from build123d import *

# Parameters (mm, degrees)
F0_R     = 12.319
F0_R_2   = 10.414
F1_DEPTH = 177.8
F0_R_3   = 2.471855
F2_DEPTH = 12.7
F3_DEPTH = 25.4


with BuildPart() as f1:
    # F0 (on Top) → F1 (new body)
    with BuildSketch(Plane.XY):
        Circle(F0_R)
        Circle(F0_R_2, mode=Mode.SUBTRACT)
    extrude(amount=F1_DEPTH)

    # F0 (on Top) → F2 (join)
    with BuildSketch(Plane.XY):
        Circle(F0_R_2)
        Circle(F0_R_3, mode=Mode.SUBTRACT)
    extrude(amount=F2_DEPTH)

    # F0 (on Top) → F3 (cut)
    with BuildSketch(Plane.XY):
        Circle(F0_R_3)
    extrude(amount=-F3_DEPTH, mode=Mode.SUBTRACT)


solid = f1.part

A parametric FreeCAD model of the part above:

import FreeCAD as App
import Part
import Sketcher
from FreeCAD import Vector
Q = App.Units.Quantity

doc = App.newDocument("Part")
body = doc.addObject("PartDesign::Body", "Body")

sketch1 = body.newObject("Sketcher::SketchObject", "Sketch")
sketch1.AttachmentSupport = (doc.getObject("XY_Plane"), [""])
sketch1.MapMode = "FlatFace"
sketch1.addGeometry([
    Part.Circle(Vector(0, 0, 0), Vector(0, 0, 1), 12),
    Part.Circle(Vector(0, 0, 0), Vector(0, 0, 1), 10),
], False)
sketch1.addConstraint([
    Sketcher.Constraint("Coincident", 0, 3, -1, 1),
    Sketcher.Constraint("Coincident", 1, 3, -1, 1),
    Sketcher.Constraint("Diameter", 0, Q("0.97 in")),
    Sketcher.Constraint("Diameter", 1, Q("0.82 in")),
])
pad1 = body.newObject("PartDesign::Pad", "Pad")
pad1.Profile = sketch1
pad1.Length = Q("7 in")

sketch2 = body.newObject("Sketcher::SketchObject", "Sketch001")
sketch2.AttachmentSupport = (doc.getObject("XY_Plane"), [""])
sketch2.MapMode = "FlatFace"
sketch2.addGeometry([
    Part.Circle(Vector(0, 0, 0), Vector(0, 0, 1), 10.4),
    Part.Circle(Vector(0, 0, 0), Vector(0, 0, 1), 2.5),
], False)
sketch2.addConstraint([
    Sketcher.Constraint("Coincident", 0, 3, -1, 1),
    Sketcher.Constraint("Coincident", 1, 3, -1, 1),
    Sketcher.Constraint("Diameter", 0, Q("0.82 in")),
    Sketcher.Constraint("Diameter", 1, Q("4.94371 mm")),
])
pad2 = body.newObject("PartDesign::Pad", "Pad001")
pad2.Profile = sketch2
pad2.Length = Q("0.5 in")

sketch3 = body.newObject("Sketcher::SketchObject", "Sketch002")
sketch3.AttachmentSupport = (doc.getObject("XY_Plane"), [""])
sketch3.MapMode = "FlatFace"
sketch3.addGeometry(Part.Circle(Vector(0, 0, 0), Vector(0, 0, 1), 2.5), False)
sketch3.addConstraint([
    Sketcher.Constraint("Coincident", 0, 3, -1, 1),
    Sketcher.Constraint("Diameter", 0, Q("4.94371 mm")),
])
pocket1 = body.newObject("PartDesign::Pocket", "Pocket")
pocket1.Profile = sketch3
pocket1.Length = Q("1 in")

doc.recompute()
